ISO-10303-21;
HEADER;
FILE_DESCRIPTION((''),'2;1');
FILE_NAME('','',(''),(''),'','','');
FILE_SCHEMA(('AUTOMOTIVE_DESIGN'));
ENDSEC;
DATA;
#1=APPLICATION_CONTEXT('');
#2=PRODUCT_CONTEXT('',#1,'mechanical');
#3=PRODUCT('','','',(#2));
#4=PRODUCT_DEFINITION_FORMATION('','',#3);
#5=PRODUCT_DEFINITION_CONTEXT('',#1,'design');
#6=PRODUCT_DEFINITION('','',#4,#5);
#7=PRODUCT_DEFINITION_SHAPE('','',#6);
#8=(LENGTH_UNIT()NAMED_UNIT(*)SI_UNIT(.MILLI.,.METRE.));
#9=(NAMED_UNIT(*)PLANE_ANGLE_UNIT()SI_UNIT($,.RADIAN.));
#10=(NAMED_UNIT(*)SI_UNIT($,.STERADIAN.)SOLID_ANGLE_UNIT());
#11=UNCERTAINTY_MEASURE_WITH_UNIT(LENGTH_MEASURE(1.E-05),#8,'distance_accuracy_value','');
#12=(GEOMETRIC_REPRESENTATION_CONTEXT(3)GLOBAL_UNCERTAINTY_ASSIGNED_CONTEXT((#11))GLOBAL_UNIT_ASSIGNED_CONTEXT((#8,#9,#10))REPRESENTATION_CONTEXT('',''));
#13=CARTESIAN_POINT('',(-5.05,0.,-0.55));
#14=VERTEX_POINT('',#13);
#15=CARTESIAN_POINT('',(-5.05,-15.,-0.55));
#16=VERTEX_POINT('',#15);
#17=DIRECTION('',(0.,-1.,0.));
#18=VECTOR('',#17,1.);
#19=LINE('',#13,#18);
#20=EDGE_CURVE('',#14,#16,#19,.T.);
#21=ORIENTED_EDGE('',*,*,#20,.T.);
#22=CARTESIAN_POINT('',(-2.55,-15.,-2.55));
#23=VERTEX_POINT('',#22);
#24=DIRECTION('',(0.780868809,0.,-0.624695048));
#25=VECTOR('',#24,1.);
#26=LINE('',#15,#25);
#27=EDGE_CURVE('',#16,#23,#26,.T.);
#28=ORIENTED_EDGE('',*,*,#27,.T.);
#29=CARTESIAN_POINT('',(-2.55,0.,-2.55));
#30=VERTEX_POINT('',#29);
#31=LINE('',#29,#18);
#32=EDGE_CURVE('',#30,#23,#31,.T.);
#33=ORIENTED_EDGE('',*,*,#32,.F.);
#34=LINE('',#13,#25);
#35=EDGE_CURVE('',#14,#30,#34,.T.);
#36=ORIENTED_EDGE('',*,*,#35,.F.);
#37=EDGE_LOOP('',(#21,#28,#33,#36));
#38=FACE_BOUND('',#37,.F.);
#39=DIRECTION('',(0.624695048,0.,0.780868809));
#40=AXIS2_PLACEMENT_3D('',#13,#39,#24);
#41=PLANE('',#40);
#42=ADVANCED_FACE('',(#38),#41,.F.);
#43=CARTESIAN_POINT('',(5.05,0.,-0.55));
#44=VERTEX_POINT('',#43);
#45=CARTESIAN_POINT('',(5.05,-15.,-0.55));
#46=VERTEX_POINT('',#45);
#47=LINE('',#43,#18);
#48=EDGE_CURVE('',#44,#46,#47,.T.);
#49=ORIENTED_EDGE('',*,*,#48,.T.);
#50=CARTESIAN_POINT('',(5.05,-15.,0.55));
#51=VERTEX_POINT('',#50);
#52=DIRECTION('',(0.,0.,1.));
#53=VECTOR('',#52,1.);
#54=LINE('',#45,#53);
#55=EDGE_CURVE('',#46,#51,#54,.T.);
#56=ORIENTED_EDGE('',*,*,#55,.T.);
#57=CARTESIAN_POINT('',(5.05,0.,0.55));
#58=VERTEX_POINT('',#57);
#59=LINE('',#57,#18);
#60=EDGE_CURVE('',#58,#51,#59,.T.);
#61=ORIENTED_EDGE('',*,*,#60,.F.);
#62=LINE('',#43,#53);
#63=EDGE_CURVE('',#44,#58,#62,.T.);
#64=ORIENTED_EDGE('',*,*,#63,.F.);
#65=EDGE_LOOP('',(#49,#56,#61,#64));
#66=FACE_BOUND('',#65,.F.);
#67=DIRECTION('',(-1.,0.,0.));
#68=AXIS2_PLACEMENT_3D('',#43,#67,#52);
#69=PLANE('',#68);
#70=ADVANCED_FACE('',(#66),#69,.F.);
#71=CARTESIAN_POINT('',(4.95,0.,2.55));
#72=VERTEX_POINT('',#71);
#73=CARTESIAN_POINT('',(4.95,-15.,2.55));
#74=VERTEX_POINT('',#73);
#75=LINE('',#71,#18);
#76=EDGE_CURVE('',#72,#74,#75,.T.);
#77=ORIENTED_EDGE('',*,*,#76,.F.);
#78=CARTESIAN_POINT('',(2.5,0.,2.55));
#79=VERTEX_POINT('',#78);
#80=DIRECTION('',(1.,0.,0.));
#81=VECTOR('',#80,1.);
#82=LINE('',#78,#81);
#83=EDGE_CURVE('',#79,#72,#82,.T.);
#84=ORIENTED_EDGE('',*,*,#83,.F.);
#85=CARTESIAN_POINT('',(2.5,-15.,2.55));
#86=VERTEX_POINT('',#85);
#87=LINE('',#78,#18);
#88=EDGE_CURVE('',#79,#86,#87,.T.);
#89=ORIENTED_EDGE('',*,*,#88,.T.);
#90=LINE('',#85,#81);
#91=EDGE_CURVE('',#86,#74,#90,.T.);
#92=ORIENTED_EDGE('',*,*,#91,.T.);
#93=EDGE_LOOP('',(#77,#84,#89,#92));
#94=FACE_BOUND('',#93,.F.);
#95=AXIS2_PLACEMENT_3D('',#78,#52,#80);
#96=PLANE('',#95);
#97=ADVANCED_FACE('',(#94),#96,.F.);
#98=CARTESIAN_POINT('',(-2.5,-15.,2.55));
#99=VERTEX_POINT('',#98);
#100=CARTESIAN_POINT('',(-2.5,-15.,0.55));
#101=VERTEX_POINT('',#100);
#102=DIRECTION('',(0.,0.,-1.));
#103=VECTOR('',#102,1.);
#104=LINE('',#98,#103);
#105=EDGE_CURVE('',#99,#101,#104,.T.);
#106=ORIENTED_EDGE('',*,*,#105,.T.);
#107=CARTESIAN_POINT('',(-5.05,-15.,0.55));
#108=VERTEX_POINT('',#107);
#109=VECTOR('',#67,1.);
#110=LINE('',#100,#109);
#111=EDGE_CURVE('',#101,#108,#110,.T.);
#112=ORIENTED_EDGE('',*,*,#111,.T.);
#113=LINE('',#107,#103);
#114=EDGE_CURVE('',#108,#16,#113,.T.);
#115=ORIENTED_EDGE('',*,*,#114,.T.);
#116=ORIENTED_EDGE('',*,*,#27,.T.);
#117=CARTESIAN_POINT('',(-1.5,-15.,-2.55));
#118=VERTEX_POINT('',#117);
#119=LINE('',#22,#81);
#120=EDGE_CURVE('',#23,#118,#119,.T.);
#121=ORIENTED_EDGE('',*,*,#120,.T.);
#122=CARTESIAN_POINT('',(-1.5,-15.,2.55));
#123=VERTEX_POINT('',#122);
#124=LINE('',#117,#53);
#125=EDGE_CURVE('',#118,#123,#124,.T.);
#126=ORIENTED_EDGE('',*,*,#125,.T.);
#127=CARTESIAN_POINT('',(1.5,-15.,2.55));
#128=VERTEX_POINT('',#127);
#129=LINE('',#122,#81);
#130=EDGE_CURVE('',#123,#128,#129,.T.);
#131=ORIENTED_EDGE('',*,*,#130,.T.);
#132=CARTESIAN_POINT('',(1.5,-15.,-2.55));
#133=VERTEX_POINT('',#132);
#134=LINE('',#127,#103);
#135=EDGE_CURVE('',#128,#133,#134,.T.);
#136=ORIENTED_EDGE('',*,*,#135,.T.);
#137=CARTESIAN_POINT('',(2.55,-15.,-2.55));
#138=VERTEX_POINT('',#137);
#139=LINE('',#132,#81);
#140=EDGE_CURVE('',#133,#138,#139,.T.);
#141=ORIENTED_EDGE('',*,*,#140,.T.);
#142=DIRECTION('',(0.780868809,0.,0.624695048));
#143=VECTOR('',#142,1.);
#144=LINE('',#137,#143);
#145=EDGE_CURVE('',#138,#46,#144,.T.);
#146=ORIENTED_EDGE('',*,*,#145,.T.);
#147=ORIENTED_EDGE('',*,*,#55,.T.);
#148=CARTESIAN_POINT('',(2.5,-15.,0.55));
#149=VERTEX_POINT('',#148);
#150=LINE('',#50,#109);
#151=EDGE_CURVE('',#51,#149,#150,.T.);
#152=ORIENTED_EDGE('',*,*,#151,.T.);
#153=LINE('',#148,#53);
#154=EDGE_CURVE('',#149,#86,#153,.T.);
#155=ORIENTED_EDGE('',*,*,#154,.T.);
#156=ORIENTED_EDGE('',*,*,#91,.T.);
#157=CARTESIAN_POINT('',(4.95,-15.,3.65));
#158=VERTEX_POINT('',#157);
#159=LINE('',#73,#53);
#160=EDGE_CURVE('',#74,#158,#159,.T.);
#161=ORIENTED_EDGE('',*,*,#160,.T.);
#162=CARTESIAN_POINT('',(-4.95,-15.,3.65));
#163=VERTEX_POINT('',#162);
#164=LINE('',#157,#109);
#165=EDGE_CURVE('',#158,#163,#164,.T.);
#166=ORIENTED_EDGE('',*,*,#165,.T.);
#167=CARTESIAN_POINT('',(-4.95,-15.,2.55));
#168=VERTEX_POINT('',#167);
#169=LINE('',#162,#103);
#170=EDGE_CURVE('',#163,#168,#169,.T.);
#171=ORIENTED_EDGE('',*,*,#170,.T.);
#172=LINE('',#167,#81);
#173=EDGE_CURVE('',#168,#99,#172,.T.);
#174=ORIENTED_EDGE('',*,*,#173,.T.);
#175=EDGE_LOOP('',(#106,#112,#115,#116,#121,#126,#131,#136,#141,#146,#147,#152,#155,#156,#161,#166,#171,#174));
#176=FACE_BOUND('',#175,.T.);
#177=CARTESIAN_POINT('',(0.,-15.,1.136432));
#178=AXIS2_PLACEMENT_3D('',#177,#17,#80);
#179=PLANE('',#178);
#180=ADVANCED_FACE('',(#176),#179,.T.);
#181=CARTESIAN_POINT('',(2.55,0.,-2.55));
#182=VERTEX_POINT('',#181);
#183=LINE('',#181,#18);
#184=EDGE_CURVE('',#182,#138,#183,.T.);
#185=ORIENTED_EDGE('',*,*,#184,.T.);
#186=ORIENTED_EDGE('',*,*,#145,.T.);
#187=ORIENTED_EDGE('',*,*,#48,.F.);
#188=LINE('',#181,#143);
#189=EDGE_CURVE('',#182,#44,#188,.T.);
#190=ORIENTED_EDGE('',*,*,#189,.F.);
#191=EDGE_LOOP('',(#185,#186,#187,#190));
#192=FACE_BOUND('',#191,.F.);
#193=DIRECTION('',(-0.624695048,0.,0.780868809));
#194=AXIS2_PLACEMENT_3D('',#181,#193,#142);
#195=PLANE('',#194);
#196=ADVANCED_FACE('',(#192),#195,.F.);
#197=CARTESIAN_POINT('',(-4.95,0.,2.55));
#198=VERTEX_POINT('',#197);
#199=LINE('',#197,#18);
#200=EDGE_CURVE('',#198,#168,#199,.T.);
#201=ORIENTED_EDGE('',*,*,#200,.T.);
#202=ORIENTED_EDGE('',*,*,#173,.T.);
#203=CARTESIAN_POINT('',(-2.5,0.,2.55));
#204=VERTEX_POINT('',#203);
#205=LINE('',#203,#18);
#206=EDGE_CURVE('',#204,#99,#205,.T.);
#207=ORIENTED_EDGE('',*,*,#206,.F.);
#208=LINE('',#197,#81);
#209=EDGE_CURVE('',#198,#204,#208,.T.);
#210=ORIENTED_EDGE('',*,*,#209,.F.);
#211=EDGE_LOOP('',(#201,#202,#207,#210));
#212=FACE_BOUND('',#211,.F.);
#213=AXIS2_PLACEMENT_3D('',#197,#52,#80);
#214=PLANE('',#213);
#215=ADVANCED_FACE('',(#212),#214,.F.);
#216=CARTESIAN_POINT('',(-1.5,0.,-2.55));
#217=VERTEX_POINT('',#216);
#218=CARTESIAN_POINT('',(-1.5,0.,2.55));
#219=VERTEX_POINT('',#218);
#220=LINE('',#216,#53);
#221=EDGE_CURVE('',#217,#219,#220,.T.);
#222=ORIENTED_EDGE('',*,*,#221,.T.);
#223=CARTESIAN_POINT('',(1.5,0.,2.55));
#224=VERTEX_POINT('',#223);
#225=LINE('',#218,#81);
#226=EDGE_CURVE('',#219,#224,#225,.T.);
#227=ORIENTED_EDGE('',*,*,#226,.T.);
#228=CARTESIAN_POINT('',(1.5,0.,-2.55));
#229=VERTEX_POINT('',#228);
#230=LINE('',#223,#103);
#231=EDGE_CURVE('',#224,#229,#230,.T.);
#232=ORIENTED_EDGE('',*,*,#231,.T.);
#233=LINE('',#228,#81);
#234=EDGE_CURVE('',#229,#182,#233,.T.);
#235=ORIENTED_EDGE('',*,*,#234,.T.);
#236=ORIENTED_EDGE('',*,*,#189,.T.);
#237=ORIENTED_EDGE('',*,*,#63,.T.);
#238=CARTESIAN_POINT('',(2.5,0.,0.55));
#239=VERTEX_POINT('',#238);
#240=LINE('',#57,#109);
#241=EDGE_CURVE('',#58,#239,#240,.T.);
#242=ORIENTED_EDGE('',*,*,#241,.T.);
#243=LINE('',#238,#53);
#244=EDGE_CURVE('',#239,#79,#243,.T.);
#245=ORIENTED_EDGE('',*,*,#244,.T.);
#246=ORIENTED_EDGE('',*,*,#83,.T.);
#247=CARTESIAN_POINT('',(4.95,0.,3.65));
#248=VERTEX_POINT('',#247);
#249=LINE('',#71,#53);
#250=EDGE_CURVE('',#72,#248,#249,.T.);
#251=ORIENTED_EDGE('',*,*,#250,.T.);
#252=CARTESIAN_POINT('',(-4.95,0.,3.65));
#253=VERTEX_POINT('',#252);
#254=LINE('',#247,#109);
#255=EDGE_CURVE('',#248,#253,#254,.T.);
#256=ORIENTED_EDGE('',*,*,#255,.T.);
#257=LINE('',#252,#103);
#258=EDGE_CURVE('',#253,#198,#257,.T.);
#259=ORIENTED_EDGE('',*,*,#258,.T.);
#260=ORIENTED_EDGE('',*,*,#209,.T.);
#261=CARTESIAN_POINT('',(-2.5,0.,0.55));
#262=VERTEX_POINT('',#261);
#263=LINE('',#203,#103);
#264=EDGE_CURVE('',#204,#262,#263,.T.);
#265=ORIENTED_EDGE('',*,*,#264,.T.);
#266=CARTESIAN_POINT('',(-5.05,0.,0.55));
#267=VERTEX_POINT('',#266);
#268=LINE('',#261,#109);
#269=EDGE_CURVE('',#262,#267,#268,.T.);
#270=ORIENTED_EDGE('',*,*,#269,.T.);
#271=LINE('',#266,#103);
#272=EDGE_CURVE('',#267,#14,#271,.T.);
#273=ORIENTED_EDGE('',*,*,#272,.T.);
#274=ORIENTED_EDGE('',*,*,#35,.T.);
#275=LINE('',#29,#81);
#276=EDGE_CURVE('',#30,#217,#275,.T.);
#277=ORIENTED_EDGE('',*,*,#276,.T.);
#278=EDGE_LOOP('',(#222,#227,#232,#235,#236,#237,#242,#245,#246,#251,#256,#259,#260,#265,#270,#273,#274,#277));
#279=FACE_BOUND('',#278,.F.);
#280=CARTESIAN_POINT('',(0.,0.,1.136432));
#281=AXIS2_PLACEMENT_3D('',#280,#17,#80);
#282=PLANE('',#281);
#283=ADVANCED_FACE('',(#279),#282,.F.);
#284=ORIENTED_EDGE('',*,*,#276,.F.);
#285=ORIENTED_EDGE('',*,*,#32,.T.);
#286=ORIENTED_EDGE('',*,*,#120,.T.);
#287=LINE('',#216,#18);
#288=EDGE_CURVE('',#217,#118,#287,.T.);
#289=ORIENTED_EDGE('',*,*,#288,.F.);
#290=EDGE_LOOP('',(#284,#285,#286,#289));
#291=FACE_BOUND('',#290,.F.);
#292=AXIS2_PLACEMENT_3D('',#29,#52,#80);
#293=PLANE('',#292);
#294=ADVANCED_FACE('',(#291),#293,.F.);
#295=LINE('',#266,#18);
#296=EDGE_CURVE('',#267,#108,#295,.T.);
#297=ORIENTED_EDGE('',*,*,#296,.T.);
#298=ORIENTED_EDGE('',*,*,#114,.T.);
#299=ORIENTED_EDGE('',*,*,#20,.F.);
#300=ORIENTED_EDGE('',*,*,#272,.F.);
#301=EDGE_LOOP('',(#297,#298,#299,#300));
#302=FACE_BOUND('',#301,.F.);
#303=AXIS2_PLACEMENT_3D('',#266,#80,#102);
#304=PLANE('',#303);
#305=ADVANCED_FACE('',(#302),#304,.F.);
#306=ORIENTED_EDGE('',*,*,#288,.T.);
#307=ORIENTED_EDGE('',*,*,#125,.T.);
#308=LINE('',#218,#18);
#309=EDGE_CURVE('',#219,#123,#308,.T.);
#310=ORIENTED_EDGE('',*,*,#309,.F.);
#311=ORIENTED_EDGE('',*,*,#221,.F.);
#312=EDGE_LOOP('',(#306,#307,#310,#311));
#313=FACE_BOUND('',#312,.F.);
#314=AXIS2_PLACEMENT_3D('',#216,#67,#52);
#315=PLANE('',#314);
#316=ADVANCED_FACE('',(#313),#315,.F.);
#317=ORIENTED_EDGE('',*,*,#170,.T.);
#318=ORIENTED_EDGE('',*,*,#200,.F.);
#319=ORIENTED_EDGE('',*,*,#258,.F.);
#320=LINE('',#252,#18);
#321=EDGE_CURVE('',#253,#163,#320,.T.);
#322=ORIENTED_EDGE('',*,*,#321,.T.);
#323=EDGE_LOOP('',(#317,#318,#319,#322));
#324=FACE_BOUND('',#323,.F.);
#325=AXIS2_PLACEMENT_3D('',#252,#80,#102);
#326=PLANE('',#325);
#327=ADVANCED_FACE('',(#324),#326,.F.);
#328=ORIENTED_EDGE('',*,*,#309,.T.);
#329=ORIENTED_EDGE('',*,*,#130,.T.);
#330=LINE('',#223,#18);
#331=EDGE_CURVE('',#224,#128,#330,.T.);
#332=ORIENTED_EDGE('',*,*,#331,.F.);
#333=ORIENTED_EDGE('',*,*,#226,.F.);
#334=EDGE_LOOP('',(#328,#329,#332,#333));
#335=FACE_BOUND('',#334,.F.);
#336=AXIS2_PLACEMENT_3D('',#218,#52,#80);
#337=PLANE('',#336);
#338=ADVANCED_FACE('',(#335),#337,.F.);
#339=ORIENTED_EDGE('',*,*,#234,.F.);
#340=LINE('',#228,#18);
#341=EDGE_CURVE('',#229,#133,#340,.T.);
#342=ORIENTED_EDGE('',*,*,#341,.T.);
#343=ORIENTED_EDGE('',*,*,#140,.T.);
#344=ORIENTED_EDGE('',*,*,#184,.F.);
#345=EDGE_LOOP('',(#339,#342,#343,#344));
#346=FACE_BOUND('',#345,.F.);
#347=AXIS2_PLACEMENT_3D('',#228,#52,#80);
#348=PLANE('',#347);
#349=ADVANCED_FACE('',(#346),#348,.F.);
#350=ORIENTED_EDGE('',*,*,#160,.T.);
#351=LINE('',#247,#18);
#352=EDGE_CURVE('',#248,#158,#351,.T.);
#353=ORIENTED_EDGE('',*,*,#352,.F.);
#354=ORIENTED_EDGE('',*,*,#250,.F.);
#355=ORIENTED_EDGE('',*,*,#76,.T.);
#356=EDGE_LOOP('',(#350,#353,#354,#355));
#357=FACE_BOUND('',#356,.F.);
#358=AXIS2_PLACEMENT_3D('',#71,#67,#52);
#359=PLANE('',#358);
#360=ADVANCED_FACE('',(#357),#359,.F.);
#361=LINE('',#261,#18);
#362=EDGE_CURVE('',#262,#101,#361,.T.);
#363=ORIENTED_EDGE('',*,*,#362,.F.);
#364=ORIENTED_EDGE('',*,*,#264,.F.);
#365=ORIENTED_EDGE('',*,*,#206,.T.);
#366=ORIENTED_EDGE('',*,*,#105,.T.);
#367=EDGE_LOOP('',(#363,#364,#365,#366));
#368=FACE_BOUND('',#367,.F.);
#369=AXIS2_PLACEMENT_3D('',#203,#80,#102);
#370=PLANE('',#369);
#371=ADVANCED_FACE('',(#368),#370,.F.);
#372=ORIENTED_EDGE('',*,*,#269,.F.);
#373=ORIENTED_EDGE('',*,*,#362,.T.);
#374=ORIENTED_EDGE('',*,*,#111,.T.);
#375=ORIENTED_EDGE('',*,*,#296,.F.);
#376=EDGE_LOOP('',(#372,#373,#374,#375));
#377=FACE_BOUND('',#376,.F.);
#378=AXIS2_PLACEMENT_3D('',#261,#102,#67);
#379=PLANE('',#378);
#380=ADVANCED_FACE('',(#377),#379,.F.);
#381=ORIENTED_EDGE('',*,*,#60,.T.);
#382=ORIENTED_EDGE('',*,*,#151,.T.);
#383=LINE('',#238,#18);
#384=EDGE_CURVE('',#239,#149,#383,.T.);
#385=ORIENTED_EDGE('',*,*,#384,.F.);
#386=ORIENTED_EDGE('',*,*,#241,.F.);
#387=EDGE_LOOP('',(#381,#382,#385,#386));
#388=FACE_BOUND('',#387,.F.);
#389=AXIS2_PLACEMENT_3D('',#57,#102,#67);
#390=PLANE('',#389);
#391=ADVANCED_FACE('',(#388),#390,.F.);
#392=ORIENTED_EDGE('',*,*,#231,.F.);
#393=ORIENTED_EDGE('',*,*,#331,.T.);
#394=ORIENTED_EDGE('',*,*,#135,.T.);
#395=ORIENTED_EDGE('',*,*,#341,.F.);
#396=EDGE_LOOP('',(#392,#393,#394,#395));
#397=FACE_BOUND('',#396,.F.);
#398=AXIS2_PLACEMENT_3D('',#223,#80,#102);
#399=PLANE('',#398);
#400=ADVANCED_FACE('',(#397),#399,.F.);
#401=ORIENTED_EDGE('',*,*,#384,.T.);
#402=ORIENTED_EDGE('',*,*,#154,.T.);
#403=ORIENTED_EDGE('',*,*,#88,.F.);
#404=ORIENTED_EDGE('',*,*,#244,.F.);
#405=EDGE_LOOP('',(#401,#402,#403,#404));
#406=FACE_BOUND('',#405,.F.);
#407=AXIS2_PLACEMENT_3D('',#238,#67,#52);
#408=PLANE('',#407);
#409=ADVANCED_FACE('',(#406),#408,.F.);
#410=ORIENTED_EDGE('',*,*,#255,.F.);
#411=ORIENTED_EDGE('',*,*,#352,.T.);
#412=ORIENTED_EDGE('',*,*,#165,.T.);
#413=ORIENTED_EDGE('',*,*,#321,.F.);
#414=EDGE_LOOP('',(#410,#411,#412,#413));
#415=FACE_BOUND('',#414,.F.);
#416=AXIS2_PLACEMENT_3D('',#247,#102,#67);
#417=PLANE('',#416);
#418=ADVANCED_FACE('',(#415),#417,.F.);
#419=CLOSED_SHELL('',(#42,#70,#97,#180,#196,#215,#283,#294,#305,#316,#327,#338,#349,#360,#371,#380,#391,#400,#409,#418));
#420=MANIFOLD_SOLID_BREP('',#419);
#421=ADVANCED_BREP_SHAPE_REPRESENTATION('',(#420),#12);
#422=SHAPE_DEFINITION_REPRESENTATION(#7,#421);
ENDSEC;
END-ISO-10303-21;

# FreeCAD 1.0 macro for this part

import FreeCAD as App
import Part
import Sketcher
from FreeCAD import Vector

doc = App.newDocument("Part")
body = doc.addObject("PartDesign::Body", "Body")

sketch1 = body.newObject("Sketcher::SketchObject", "Sketch")
sketch1.AttachmentSupport = (doc.getObject("XZ_Plane"), [""])
sketch1.MapMode = "FlatFace"
sketch1.addGeometry(Part.LineSegment(Vector(-2.5, 0.55, 0), Vector(-5.05, 0.55, 0)), False)
sketch1.addGeometry(Part.LineSegment(Vector(-5.05, 0.55, 0), Vector(-5.05, -0.55, 0)), False)
sketch1.addGeometry(Part.LineSegment(Vector(-5.05, -0.55, 0), Vector(-2.55, -2.55, 0)), False)
sketch1.addGeometry(Part.LineSegment(Vector(-2.55, -2.55, 0), Vector(-1.5, -2.55, 0)), False)
sketch1.addGeometry(Part.LineSegment(Vector(-1.5, -2.55, 0), Vector(-1.5, 2.55, 0)), False)
sketch1.addGeometry(Part.LineSegment(Vector(-1.5, 2.55, 0), Vector(1.5, 2.55, 0)), False)
sketch1.addGeometry(Part.LineSegment(Vector(1.5, 2.55, 0), Vector(1.5, -2.55, 0)), False)
sketch1.addGeometry(Part.LineSegment(Vector(1.5, -2.55, 0), Vector(2.55, -2.55, 0)), False)
sketch1.addGeometry(Part.LineSegment(Vector(2.55, -2.55, 0), Vector(5.05, -0.55, 0)), False)
sketch1.addGeometry(Part.LineSegment(Vector(5.05, -0.55, 0), Vector(5.05, 0.55, 0)), False)
sketch1.addGeometry(Part.LineSegment(Vector(5.05, 0.55, 0), Vector(2.5, 0.55, 0)), False)
sketch1.addGeometry(Part.LineSegment(Vector(2.5, 0.55, 0), Vector(2.5, 2.55, 0)), False)
sketch1.addGeometry(Part.LineSegment(Vector(2.5, 2.55, 0), Vector(4.95, 2.55, 0)), False)
sketch1.addGeometry(Part.LineSegment(Vector(4.95, 2.55, 0), Vector(4.95, 3.65, 0)), False)
sketch1.addGeometry(Part.LineSegment(Vector(4.95, 3.65, 0), Vector(-4.95, 3.65, 0)), False)
sketch1.addGeometry(Part.LineSegment(Vector(-4.95, 3.65, 0), Vector(-4.95, 2.55, 0)), False)
sketch1.addGeometry(Part.LineSegment(Vector(-4.95, 2.55, 0), Vector(-2.5, 2.55, 0)), False)
sketch1.addGeometry(Part.LineSegment(Vector(-2.5, 2.55, 0), Vector(-2.5, 0.55, 0)), False)
sketch1.addConstraint(Sketcher.Constraint("Coincident", 0, 2, 1, 1))
sketch1.addConstraint(Sketcher.Constraint("Coincident", 1, 2, 2, 1))
sketch1.addConstraint(Sketcher.Constraint("Coincident", 2, 2, 3, 1))
sketch1.addConstraint(Sketcher.Constraint("Coincident", 3, 2, 4, 1))
sketch1.addConstraint(Sketcher.Constraint("Coincident", 4, 2, 5, 1))
sketch1.addConstraint(Sketcher.Constraint("Coincident", 5, 2, 6, 1))
sketch1.addConstraint(Sketcher.Constraint("Coincident", 6, 2, 7, 1))
sketch1.addConstraint(Sketcher.Constraint("Coincident", 7, 2, 8, 1))
sketch1.addConstraint(Sketcher.Constraint("Coincident", 8, 2, 9, 1))
sketch1.addConstraint(Sketcher.Constraint("Coincident", 9, 2, 10, 1))
sketch1.addConstraint(Sketcher.Constraint("Coincident", 10, 2, 11, 1))
sketch1.addConstraint(Sketcher.Constraint("Coincident", 11, 2, 12, 1))
sketch1.addConstraint(Sketcher.Constraint("Coincident", 12, 2, 13, 1))
sketch1.addConstraint(Sketcher.Constraint("Coincident", 13, 2, 14, 1))
sketch1.addConstraint(Sketcher.Constraint("Coincident", 14, 2, 15, 1))
sketch1.addConstraint(Sketcher.Constraint("Coincident", 15, 2, 16, 1))
sketch1.addConstraint(Sketcher.Constraint("Coincident", 16, 2, 17, 1))
sketch1.addConstraint(Sketcher.Constraint("Coincident", 17, 2, 0, 1))
sketch1.addConstraint(Sketcher.Constraint("Horizontal", 0))
sketch1.addConstraint(Sketcher.Constraint("Vertical", 1))
sketch1.addConstraint(Sketcher.Constraint("Horizontal", 3))
sketch1.addConstraint(Sketcher.Constraint("Vertical", 4))
sketch1.addConstraint(Sketcher.Constraint("Horizontal", 5))
sketch1.addConstraint(Sketcher.Constraint("Vertical", 6))
sketch1.addConstraint(Sketcher.Constraint("Horizontal", 7))
sketch1.addConstraint(Sketcher.Constraint("Vertical", 9))
sketch1.addConstraint(Sketcher.Constraint("Horizontal", 10))
sketch1.addConstraint(Sketcher.Constraint("Vertical", 11))
sketch1.addConstraint(Sketcher.Constraint("Horizontal", 12))
sketch1.addConstraint(Sketcher.Constraint("Vertical", 13))
sketch1.addConstraint(Sketcher.Constraint("Horizontal", 14))
sketch1.addConstraint(Sketcher.Constraint("Vertical", 15))
sketch1.addConstraint(Sketcher.Constraint("Horizontal", 16))
sketch1.addConstraint(Sketcher.Constraint("Vertical", 17))
sketch1.addConstraint(Sketcher.Constraint("Symmetric", 3, 2, 5, 2, -1, 1))
sketch1.addConstraint(Sketcher.Constraint("Symmetric", 0, 2, 8, 2, -1, 1))
sketch1.addConstraint(Sketcher.Constraint("Symmetric", 2, 2, 7, 2, -2))
sketch1.addConstraint(Sketcher.Constraint("Symmetric", 12, 2, 15, 2, -2))
sketch1.addConstraint(Sketcher.Constraint("Symmetric", 10, 2, 17, 2, -2))
sketch1.addConstraint(Sketcher.Constraint("Horizontal", 1, 2, 8, 2))
sketch1.addConstraint(Sketcher.Constraint("Horizontal", 5, 2, 11, 2))
sketch1.addConstraint(Sketcher.Constraint("Equal", 9, 13))
sketch1.addConstraint(Sketcher.Constraint("DistanceX", 5, 1, 5, 2, 3.0))
sketch1.addConstraint(Sketcher.Constraint("DistanceY", 11, 1, 11, 2, 2.0))
sketch1.addConstraint(Sketcher.Constraint("DistanceX", 14, 2, 14, 1, 9.9))
sketch1.addConstraint(Sketcher.Constraint("DistanceY", 1, 2, 1, 1, 1.1))
sketch1.addConstraint(Sketcher.Constraint("DistanceX", 5, 2, 10, 2, 1.0))
sketch1.addConstraint(Sketcher.Constraint("DistanceX", 0, 2, 0, 1, 2.55))
sketch1.addConstraint(Sketcher.Constraint("DistanceX", 3, 1, 3, 2, 1.05))
pad1 = body.newObject("PartDesign::Pad", "Pad")
pad1.Profile = sketch1
pad1.Length = 15

doc.recompute()
